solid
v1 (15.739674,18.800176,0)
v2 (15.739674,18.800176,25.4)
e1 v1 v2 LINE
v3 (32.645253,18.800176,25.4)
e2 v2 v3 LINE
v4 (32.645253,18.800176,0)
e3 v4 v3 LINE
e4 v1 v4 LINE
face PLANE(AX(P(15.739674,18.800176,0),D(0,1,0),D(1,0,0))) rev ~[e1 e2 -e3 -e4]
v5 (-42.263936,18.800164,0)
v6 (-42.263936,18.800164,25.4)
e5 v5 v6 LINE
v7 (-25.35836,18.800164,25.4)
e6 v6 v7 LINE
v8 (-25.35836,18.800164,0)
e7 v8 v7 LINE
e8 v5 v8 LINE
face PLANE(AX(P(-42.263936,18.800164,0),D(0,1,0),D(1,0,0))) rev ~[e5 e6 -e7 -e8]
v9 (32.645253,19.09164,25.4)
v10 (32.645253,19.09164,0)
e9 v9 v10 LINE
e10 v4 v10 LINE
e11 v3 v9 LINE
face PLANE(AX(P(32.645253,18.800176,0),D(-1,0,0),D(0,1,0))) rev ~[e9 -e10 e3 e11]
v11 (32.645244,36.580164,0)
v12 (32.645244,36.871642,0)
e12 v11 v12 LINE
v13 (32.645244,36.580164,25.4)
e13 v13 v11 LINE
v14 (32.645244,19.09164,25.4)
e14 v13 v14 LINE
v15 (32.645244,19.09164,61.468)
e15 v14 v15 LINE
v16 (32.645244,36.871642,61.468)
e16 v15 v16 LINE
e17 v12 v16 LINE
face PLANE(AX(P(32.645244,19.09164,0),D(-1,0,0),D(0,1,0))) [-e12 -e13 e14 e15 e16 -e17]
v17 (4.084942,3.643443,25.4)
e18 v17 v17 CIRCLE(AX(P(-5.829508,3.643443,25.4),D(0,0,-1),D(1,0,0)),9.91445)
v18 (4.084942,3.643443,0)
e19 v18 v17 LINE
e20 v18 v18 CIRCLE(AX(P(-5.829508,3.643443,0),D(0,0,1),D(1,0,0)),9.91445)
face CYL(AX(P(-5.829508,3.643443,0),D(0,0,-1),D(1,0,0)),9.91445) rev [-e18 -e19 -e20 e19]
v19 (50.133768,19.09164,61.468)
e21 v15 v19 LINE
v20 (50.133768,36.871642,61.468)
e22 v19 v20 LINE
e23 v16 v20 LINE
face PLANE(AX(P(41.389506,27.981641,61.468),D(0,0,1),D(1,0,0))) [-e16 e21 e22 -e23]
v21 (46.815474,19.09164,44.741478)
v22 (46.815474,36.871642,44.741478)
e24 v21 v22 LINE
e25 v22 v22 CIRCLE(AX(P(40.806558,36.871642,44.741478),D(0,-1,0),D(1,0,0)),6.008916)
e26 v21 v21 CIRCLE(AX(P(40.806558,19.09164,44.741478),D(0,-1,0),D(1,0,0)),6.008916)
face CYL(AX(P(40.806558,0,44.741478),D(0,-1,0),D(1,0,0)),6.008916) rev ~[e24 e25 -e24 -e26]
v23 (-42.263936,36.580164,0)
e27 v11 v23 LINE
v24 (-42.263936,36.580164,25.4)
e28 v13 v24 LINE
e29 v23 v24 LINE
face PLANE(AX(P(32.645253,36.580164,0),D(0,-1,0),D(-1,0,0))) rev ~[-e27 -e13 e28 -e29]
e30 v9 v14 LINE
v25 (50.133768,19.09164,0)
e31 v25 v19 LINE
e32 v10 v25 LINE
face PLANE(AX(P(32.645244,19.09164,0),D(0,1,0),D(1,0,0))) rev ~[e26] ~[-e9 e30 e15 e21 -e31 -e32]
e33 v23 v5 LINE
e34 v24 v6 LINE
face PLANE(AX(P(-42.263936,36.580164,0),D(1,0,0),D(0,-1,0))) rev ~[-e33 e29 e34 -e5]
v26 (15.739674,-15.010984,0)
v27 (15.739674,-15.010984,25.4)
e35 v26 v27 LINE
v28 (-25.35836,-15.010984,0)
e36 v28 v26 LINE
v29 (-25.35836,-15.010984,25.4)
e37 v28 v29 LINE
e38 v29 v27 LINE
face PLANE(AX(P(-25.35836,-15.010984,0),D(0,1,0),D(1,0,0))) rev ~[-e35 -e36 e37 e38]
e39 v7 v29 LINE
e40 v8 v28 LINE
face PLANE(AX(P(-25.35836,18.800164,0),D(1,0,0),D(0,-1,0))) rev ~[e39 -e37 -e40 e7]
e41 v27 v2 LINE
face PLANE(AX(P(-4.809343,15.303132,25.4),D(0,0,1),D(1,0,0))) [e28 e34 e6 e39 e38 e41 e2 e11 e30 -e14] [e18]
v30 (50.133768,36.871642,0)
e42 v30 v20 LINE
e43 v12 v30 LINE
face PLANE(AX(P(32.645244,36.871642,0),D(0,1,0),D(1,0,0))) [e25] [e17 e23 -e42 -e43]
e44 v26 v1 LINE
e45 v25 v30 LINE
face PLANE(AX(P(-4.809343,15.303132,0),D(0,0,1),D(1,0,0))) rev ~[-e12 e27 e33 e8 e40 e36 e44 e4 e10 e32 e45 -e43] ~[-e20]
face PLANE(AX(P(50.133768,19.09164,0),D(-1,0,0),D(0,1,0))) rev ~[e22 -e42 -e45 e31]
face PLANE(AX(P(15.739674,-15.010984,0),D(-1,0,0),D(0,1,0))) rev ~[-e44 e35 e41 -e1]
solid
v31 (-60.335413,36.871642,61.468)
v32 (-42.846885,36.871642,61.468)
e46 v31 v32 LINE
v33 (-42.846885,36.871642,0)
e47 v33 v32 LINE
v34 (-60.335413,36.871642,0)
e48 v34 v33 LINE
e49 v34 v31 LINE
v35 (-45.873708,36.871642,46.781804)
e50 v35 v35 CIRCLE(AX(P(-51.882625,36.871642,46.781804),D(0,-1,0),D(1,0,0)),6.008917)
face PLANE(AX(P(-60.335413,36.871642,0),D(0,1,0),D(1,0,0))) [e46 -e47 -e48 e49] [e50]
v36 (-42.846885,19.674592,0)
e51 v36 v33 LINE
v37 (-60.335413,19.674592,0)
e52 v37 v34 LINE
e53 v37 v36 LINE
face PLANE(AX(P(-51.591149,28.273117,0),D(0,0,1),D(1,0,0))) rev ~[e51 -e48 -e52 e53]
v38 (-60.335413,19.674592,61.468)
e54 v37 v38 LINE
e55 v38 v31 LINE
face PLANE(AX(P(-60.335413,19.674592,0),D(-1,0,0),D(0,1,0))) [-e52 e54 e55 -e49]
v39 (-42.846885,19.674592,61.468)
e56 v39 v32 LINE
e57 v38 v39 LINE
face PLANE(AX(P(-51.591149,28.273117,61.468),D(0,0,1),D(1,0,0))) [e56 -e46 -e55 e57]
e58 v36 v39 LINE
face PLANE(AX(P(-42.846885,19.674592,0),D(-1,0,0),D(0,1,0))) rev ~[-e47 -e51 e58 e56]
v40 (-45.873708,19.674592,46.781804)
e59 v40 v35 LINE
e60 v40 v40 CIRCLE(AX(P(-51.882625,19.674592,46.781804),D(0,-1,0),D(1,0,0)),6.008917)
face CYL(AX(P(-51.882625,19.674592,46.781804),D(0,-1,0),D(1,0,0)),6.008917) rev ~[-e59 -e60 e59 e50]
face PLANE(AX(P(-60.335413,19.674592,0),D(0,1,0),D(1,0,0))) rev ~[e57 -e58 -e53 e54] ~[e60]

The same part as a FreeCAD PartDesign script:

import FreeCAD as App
import Part
import Sketcher

V = App.Vector
Q = App.Units.Quantity


def add_polygon(sketch, points):
    """Adds a closed chain of lines whose ends are joined by coincident constraints."""
    first, n = sketch.GeometryCount, len(points)
    for a, b in zip(points, points[1:] + points[:1]):
        sketch.addGeometry(Part.LineSegment(App.Vector(*a, 0), App.Vector(*b, 0)), False)
    for i in range(n):
        sketch.addConstraint(Sketcher.Constraint("Coincident", first + i, 2, first + (i + 1) % n, 1))

doc = App.newDocument("Part")
body = doc.addObject("PartDesign::Body", "Body")
body.AllowCompound = True

sketch1 = doc.addObject("Sketcher::SketchObject", "Sketch")
body.addObject(sketch1)
sketch1.AttachmentSupport = (doc.XY_Plane, [""])
sketch1.MapMode = "FlatFace"
add_polygon(sketch1, [(-42.263936, 18.800164), (-25.35836, 18.800164), (-25.35836, -15.010984), (15.739674, -15.010984), (15.739674, 18.800176), (32.645253, 18.800176), (32.645253, 36.580164), (-42.263936, 36.580164)])
sketch1.addConstraint([
    Sketcher.Constraint("Horizontal", 0),
    Sketcher.Constraint("Vertical", 1),
    Sketcher.Constraint("Horizontal", 2),
    Sketcher.Constraint("Vertical", 3),
    Sketcher.Constraint("Horizontal", 4),
    Sketcher.Constraint("Vertical", 5),
    Sketcher.Constraint("Horizontal", 6),
    Sketcher.Constraint("Vertical", 7),
    Sketcher.Constraint("DistanceY", 7, 2, 7, 1, Q("0.7 in")),
    Sketcher.Constraint("DistanceX", 4, 1, 4, 2, Q("16.905579 mm")),
    Sketcher.Constraint("DistanceX", 6, 2, 6, 1, Q("74.909189 mm")),
    Sketcher.Constraint("DistanceY", 1, 2, 1, 1, Q("33.811148 mm")),
    Sketcher.Constraint("DistanceY", 3, 1, 3, 2, Q("33.81116 mm")),
    Sketcher.Constraint("DistanceX", 0, 1, 0, 2, Q("16.905576 mm")),
    Sketcher.Constraint("DistanceX", 0, 2, -1, 1, Q("25.35836 mm")),
    Sketcher.Constraint("DistanceY", -1, 1, 0, 2, Q("18.800164 mm")),
])
pad1 = doc.addObject("PartDesign::Pad", "Pad")
body.addObject(pad1)
pad1.Profile = sketch1
pad1.Length = Q("1 in")

sketch2 = doc.addObject("Sketcher::SketchObject", "Sketch001")
body.addObject(sketch2)
sketch2.AttachmentSupport = (doc.XY_Plane, [""])
sketch2.MapMode = "FlatFace"
add_polygon(sketch2, [(32.645244, 36.871642), (32.645244, 19.09164), (50.133768, 19.09164), (50.133768, 36.871642)])
add_polygon(sketch2, [(-60.335413, 36.871642), (-60.335413, 19.674592), (-42.846885, 19.674592), (-42.846885, 36.871642)])
sketch2.addConstraint([
    Sketcher.Constraint("Vertical", 0),
    Sketcher.Constraint("Horizontal", 1),
    Sketcher.Constraint("Vertical", 2),
    Sketcher.Constraint("Horizontal", 3),
    Sketcher.Constraint("Vertical", 4),
    Sketcher.Constraint("Horizontal", 5),
    Sketcher.Constraint("Vertical", 6),
    Sketcher.Constraint("Horizontal", 7),
    Sketcher.Constraint("Horizontal", 3, 2, 6, 2),
    Sketcher.Constraint("DistanceY", 0, 2, 0, 1, Q("0.7000001 in")),
    Sketcher.Constraint("DistanceX", 5, 1, 5, 2, Q("17.488528 mm")),
    Sketcher.Constraint("DistanceY", 4, 2, 4, 1, Q("17.19705 mm")),
    Sketcher.Constraint("DistanceX", 1, 1, 1, 2, Q("17.488524 mm")),
    Sketcher.Constraint("DistanceY", -1, 1, 0, 2, Q("19.09164 mm")),
    Sketcher.Constraint("DistanceX", -1, 1, 1, 2, Q("50.133768 mm")),
    Sketcher.Constraint("DistanceX", 4, 2, 1, 2, Q("110.469181 mm")),
])
pad2 = doc.addObject("PartDesign::Pad", "Pad001")
body.addObject(pad2)
pad2.Profile = sketch2
pad2.Length = Q("2.42 in")

sketch3 = doc.addObject("Sketcher::SketchObject", "Sketch002")
body.addObject(sketch3)
sketch3.AttachmentSupport = (doc.XY_Plane, [""])
sketch3.MapMode = "FlatFace"
sketch3.addGeometry(Part.Circle(V(-5.829508, 3.643443, 0), V(0, 0, 1), 9.91445), False)
sketch3.addConstraint([
    Sketcher.Constraint("Diameter", 0, Q("19.8289 mm")),
    Sketcher.Constraint("DistanceX", 0, 3, -1, 1, Q("5.829508 mm")),
    Sketcher.Constraint("DistanceY", -1, 1, 0, 3, Q("3.643443 mm")),
])
pocket1 = doc.addObject("PartDesign::Pocket", "Pocket")
body.addObject(pocket1)
pocket1.Profile = sketch3
pocket1.Length = Q("1.88 in")
pocket1.Reversed = True

sketch4 = doc.addObject("Sketcher::SketchObject", "Sketch003")
body.addObject(sketch4)
sketch4.AttachmentSupport = (doc.XZ_Plane, [""])
sketch4.MapMode = "FlatFace"
sketch4.addGeometry(Part.Circle(V(26.7267, 51.102538, 0), V(0, 0, 1), 4.653426), False)
sketch4.addConstraint([
    Sketcher.Constraint("Diameter", 0, Q("9.306852 mm")),
    Sketcher.Constraint("DistanceX", -1, 1, 0, 3, Q("26.7267 mm")),
    Sketcher.Constraint("DistanceY", -1, 1, 0, 3, Q("51.102538 mm")),
])
pocket2 = doc.addObject("PartDesign::Pocket", "Pocket001")
body.addObject(pocket2)
pocket2.Profile = sketch4
pocket2.Length = Q("2.16 in")

sketch5 = doc.addObject("Sketcher::SketchObject", "Sketch004")
body.addObject(sketch5)
sketch5.AttachmentSupport = (doc.XZ_Plane, [""])
sketch5.MapMode = "FlatFace"
sketch5.AttachmentOffset = App.Placement(V(0, 0, -19.674592), App.Rotation())
sketch5.addGeometry(Part.Circle(V(-51.882625, 46.781804, 0), V(0, 0, 1), 6.008917), False)
sketch5.addConstraint([
    Sketcher.Constraint("Diameter", 0, Q("12.017834 mm")),
    Sketcher.Constraint("DistanceX", 0, 3, -1, 1, Q("51.882625 mm")),
    Sketcher.Constraint("DistanceY", -1, 1, 0, 3, Q("46.781804 mm")),
])
pocket3 = doc.addObject("PartDesign::Pocket", "Pocket002")
body.addObject(pocket3)
pocket3.Profile = sketch5
pocket3.Length = Q("1.96 in")

sketch6 = doc.addObject("Sketcher::SketchObject", "Sketch005")
body.addObject(sketch6)
sketch6.AttachmentSupport = (doc.XZ_Plane, [""])
sketch6.MapMode = "FlatFace"
sketch6.addGeometry(Part.Circle(V(40.806558, 44.741478, 0), V(0, 0, 1), 6.008916), False)
sketch6.addConstraint([
    Sketcher.Constraint("Diameter", 0, Q("12.017832 mm")),
    Sketcher.Constraint("DistanceX", -1, 1, 0, 3, Q("40.806558 mm")),
    Sketcher.Constraint("DistanceY", -1, 1, 0, 3, Q("44.741478 mm")),
])
pocket4 = doc.addObject("PartDesign::Pocket", "Pocket003")
body.addObject(pocket4)
pocket4.Profile = sketch6
pocket4.Length = Q("2.01 in")

doc.recompute()
